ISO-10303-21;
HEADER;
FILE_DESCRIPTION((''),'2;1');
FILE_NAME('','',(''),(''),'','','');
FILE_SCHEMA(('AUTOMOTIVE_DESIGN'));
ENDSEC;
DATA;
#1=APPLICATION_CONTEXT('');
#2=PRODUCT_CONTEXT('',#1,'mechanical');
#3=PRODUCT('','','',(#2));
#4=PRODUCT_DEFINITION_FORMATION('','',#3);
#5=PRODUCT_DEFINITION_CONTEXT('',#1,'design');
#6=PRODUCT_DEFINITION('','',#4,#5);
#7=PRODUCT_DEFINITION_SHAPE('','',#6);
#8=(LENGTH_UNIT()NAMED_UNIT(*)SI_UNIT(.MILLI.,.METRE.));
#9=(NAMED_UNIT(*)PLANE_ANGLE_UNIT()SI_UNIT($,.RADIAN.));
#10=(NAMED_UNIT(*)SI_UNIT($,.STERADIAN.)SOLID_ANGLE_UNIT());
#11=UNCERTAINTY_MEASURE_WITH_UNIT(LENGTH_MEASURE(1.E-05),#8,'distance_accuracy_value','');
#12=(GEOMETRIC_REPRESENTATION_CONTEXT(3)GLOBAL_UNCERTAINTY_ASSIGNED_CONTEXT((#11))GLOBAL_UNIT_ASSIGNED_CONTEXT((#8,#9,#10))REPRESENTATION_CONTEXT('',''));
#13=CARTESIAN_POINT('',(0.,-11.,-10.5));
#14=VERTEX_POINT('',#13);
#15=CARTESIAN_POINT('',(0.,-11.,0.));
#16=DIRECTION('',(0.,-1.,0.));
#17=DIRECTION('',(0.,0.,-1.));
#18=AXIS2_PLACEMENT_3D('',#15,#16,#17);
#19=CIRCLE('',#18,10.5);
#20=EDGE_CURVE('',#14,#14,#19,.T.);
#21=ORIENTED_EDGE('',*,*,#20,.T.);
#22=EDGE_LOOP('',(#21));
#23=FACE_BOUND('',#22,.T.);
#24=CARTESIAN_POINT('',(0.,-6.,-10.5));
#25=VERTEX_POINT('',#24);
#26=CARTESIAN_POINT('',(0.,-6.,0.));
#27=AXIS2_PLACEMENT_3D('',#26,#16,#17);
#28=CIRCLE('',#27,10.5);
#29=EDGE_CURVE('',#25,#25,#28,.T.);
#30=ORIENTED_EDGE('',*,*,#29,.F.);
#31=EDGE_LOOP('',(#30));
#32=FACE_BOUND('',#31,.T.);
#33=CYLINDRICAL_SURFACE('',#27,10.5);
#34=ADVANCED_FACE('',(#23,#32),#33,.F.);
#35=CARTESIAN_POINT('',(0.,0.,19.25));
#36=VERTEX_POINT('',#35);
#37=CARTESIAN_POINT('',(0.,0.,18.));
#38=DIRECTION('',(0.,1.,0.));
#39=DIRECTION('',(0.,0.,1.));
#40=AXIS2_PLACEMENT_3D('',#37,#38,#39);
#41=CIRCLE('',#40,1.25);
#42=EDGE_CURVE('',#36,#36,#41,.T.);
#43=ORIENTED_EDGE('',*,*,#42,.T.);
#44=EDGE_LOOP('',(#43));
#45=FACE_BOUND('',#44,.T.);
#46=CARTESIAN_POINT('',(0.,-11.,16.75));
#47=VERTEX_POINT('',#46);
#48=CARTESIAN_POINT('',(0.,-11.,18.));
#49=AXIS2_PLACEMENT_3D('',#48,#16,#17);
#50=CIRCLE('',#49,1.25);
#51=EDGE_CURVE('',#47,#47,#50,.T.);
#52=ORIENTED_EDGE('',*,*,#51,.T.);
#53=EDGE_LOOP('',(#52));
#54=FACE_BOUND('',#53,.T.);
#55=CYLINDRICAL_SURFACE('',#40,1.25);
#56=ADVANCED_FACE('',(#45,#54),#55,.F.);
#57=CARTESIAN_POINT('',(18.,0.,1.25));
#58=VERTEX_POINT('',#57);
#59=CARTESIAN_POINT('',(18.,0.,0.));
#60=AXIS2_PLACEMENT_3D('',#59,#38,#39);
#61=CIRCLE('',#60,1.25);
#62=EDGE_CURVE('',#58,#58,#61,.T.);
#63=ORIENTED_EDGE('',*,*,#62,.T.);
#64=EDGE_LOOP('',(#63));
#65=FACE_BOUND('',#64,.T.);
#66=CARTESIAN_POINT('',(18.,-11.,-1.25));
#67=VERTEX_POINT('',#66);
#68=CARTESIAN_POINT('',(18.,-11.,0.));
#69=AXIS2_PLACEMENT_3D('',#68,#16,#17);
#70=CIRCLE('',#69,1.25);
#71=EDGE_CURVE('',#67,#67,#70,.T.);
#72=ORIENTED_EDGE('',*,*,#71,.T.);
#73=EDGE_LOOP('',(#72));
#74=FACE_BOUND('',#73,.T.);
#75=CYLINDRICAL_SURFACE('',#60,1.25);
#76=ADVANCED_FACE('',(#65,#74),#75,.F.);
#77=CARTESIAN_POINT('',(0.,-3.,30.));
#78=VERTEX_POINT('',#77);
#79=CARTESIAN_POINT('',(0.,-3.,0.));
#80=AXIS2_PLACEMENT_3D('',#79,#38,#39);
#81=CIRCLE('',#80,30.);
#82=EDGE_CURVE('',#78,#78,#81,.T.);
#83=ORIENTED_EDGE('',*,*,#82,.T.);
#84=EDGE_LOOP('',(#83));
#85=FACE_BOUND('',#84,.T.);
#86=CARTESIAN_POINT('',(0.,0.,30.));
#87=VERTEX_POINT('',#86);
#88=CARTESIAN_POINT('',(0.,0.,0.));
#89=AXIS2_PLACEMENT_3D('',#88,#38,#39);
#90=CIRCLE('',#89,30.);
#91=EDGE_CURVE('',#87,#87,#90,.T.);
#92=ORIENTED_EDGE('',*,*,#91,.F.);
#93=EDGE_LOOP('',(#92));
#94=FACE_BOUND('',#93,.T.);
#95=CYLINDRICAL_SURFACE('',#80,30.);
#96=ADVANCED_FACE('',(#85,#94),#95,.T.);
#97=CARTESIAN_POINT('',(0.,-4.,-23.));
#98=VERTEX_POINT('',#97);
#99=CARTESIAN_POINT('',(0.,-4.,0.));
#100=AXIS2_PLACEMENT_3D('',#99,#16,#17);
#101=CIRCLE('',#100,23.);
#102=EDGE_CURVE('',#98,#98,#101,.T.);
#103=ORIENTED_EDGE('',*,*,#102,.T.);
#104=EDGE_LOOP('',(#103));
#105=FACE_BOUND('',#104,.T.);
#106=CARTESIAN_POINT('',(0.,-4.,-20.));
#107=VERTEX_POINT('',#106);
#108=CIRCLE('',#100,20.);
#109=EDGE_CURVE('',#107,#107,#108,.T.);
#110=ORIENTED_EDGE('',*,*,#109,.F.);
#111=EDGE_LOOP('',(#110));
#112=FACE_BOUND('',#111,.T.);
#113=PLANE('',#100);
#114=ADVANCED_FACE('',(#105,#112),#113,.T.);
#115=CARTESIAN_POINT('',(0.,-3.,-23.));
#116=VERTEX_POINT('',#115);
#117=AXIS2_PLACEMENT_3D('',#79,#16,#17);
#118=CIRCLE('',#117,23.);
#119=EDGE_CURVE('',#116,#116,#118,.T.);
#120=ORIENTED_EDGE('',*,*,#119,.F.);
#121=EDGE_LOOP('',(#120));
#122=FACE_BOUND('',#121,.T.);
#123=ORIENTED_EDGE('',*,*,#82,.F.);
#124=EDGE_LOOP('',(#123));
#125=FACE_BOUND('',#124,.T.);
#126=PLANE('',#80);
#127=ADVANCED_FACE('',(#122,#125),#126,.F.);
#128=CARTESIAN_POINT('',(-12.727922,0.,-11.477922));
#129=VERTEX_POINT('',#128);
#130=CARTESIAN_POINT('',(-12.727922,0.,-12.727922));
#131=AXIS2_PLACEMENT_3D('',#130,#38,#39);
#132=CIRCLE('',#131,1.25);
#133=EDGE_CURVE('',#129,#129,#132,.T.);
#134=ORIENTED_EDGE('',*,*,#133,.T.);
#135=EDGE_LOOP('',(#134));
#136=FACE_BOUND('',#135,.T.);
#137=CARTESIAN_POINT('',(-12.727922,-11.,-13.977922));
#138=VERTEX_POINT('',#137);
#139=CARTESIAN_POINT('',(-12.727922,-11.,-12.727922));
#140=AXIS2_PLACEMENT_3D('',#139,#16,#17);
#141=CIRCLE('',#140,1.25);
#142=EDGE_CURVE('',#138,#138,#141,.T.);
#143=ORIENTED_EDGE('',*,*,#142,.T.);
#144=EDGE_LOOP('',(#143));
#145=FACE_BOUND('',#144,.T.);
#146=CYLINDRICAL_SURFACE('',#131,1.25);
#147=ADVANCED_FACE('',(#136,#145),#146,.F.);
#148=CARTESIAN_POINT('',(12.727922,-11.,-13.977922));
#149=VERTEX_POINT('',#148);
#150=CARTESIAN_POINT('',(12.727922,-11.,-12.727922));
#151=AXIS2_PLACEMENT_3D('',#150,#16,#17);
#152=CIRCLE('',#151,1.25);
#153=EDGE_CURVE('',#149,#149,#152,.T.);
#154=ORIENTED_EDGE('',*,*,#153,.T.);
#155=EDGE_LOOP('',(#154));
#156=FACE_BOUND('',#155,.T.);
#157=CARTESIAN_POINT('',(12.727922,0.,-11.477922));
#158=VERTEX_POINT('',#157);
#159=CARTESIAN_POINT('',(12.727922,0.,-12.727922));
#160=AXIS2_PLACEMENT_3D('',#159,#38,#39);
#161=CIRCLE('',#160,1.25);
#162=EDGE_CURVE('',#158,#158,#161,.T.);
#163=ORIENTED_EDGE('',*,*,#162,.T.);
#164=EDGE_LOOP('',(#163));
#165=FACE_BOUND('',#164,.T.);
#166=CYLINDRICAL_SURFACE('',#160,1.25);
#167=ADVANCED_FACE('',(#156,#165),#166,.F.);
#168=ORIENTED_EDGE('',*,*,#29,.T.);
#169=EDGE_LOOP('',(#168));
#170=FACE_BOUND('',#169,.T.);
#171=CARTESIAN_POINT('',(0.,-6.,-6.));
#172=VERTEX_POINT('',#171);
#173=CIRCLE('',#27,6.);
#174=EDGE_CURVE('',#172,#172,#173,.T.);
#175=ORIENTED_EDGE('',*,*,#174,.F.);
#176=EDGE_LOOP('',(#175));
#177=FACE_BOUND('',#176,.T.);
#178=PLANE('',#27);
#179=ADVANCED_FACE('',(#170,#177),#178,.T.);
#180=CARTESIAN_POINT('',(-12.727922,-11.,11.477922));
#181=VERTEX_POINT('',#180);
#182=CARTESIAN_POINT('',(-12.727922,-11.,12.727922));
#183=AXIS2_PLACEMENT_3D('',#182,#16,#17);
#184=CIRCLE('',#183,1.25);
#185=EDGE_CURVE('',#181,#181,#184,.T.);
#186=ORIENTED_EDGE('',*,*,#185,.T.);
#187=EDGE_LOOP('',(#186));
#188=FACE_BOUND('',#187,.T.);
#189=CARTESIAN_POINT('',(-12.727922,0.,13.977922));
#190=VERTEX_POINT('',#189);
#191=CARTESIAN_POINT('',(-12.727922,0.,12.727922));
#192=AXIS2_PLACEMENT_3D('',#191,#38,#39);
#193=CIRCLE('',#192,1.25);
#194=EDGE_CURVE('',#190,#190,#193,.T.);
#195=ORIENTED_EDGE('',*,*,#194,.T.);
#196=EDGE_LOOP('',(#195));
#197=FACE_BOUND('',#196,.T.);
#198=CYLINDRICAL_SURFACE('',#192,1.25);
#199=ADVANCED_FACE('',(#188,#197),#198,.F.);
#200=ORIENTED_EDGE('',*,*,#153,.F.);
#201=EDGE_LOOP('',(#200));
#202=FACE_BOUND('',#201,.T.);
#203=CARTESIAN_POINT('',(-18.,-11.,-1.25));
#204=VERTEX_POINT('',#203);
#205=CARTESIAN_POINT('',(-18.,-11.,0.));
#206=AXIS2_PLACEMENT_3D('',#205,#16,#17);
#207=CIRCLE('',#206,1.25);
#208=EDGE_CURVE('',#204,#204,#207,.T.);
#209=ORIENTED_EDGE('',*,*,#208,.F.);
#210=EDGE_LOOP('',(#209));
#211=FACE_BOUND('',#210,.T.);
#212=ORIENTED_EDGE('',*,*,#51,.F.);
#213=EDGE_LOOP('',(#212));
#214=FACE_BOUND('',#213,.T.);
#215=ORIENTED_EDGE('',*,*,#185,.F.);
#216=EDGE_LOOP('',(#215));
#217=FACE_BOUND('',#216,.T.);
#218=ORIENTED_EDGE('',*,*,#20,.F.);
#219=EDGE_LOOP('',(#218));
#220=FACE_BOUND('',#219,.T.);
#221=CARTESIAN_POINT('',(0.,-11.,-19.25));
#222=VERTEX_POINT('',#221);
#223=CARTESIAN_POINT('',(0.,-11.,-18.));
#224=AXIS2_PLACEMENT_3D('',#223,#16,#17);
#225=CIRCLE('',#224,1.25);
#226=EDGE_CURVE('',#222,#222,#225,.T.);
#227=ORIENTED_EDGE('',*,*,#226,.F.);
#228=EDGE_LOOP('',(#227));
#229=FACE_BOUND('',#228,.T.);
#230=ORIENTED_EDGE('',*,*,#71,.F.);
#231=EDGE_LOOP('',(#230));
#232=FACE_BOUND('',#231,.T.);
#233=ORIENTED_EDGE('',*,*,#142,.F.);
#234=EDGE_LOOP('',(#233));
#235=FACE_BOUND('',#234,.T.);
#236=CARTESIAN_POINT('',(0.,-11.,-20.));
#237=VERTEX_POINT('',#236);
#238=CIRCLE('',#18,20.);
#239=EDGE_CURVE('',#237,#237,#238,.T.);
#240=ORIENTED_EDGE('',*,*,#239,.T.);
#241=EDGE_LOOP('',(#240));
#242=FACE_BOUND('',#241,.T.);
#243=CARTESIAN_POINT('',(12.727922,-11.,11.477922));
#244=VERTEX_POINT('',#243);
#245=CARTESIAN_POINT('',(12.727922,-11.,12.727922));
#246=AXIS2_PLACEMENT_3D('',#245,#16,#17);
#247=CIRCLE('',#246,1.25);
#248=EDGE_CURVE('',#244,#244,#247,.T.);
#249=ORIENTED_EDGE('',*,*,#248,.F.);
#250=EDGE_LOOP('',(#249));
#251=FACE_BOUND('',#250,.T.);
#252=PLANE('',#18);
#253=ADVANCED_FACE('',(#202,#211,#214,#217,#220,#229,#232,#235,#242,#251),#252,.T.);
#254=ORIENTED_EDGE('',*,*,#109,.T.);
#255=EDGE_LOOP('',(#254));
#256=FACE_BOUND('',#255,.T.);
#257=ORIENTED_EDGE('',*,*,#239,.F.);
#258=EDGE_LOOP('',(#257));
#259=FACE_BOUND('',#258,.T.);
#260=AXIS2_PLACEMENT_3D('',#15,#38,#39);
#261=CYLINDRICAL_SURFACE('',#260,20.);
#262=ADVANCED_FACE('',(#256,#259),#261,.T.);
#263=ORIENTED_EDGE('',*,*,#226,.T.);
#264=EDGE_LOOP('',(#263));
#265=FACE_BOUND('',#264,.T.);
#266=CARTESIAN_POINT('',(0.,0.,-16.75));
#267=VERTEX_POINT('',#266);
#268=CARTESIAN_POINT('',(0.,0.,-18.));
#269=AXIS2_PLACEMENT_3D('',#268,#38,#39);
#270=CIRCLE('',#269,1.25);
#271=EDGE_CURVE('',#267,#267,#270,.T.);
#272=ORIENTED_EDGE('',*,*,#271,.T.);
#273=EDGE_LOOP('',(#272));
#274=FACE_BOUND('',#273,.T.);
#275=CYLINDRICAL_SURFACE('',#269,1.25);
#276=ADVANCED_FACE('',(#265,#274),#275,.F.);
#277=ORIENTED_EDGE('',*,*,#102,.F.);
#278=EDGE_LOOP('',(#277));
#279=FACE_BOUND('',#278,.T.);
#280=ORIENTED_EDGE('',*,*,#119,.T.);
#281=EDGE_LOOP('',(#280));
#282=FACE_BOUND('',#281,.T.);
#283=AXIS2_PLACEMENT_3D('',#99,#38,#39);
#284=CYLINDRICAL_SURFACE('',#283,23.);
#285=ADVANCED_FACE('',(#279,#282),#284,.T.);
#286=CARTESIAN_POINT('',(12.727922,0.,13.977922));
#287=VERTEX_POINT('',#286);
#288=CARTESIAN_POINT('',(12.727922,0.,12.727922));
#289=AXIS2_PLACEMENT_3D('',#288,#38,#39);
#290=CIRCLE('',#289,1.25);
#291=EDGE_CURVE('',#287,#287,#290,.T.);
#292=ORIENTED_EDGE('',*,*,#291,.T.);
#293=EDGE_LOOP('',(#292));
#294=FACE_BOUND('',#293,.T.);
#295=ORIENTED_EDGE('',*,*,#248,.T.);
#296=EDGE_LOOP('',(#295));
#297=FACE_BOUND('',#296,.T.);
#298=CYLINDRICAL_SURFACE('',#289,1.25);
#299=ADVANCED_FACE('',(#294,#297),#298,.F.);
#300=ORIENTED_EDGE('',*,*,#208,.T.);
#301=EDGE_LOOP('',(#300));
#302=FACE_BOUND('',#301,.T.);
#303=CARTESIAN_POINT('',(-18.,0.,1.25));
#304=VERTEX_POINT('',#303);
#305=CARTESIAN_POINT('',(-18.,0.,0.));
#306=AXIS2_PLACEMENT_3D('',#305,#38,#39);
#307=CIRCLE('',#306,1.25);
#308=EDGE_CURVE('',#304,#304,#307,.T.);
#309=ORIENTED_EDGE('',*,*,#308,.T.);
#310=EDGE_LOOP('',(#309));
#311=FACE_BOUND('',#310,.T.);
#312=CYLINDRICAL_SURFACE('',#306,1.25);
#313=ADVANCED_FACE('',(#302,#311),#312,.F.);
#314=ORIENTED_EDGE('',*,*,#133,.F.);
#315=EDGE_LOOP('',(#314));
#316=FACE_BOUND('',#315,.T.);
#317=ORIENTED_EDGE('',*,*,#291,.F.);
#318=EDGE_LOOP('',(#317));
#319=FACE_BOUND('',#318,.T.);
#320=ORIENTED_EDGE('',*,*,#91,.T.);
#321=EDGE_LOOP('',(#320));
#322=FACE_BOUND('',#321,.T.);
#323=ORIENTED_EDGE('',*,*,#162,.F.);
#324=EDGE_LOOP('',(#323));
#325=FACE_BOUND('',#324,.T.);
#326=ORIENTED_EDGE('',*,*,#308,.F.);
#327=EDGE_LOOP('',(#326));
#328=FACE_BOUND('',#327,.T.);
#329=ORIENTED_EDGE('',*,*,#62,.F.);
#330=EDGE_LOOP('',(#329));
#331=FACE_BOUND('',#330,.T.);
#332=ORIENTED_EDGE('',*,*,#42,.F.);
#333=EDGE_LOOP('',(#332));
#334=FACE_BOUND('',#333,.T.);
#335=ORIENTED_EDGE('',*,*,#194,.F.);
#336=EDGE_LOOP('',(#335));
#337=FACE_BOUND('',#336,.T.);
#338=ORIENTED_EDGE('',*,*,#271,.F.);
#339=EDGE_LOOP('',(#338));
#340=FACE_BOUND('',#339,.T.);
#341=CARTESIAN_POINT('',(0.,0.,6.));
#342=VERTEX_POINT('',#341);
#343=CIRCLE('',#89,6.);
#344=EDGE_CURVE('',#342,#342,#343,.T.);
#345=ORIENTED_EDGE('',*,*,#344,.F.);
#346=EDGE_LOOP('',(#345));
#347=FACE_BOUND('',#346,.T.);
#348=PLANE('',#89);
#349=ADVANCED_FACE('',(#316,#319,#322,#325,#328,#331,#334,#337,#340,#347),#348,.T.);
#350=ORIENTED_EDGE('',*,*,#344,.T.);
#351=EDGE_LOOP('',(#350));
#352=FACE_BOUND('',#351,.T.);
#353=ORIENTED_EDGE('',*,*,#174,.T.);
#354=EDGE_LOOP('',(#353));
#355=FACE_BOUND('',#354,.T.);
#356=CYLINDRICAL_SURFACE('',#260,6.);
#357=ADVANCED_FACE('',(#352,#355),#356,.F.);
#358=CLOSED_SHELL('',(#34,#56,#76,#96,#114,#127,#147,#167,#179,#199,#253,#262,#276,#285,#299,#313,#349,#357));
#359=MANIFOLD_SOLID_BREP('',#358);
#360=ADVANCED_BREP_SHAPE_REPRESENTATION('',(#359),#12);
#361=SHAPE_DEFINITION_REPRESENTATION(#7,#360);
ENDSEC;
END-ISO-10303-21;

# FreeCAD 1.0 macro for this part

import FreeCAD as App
import Part
import Sketcher

V = App.Vector
Q = App.Units.Quantity

doc = App.newDocument("Part")
body = doc.addObject("PartDesign::Body", "Body")

# Sketch on XZ plane
sketch1 = body.newObject("Sketcher::SketchObject", "Sketch")
sketch1.AttachmentSupport = (doc.getObject("XZ_Plane"), [""])
sketch1.MapMode = "FlatFace"
sketch1.addGeometry(Part.Circle(V(0, 0, 0), V(0, 0, 1), 30), False)
sketch1.addConstraint([
    Sketcher.Constraint("Coincident", 0, 3, -1, 1),
    Sketcher.Constraint("Diameter", 0, Q("60 mm")),
])
pad1 = body.newObject("PartDesign::Pad", "Pad")
pad1.Profile = sketch1
pad1.Length = 3

# Sketch on XZ plane
sketch2 = body.newObject("Sketcher::SketchObject", "Sketch001")
sketch2.AttachmentSupport = (doc.getObject("XZ_Plane"), [""])
sketch2.MapMode = "FlatFace"
sketch2.AttachmentOffset = App.Placement(V(0, 0, 3), App.Rotation())
sketch2.addGeometry(Part.Circle(V(0, 0, 0), V(0, 0, 1), 23), False)
sketch2.addConstraint([
    Sketcher.Constraint("Coincident", 0, 3, -1, 1),
    Sketcher.Constraint("Diameter", 0, Q("46 mm")),
])
pad2 = body.newObject("PartDesign::Pad", "Pad001")
pad2.Profile = sketch2
pad2.Length = 1

# Sketch on XZ plane
sketch3 = body.newObject("Sketcher::SketchObject", "Sketch002")
sketch3.AttachmentSupport = (doc.getObject("XZ_Plane"), [""])
sketch3.MapMode = "FlatFace"
sketch3.AttachmentOffset = App.Placement(V(0, 0, 4), App.Rotation())
sketch3.addGeometry(Part.Circle(V(0, 0, 0), V(0, 0, 1), 20), False)
sketch3.addConstraint([
    Sketcher.Constraint("Coincident", 0, 3, -1, 1),
    Sketcher.Constraint("Diameter", 0, Q("40 mm")),
])
pad3 = body.newObject("PartDesign::Pad", "Pad002")
pad3.Profile = sketch3
pad3.Length = 7

# Sketch on XZ plane
sketch4 = body.newObject("Sketcher::SketchObject", "Sketch003")
sketch4.AttachmentSupport = (doc.getObject("XZ_Plane"), [""])
sketch4.MapMode = "FlatFace"
sketch4.AttachmentOffset = App.Placement(V(0, 0, 11), App.Rotation())
sketch4.addGeometry(Part.Circle(V(0, 0, 0), V(0, 0, 1), 10), False)
sketch4.addConstraint([
    Sketcher.Constraint("Coincident", 0, 3, -1, 1),
    Sketcher.Constraint("Diameter", 0, Q("21 mm")),
])
pocket1 = body.newObject("PartDesign::Pocket", "Pocket")
pocket1.Profile = sketch4
pocket1.Length = 5

# Sketch on XZ plane
sketch5 = body.newObject("Sketcher::SketchObject", "Sketch004")
sketch5.AttachmentSupport = (doc.getObject("XZ_Plane"), [""])
sketch5.MapMode = "FlatFace"
sketch5.addGeometry(Part.Circle(V(0, 0, 0), V(0, 0, 1), 6), False)
sketch5.addConstraint([
    Sketcher.Constraint("Coincident", 0, 3, -1, 1),
    Sketcher.Constraint("Diameter", 0, Q("12 mm")),
])
pocket2 = body.newObject("PartDesign::Pocket", "Pocket001")
pocket2.Profile = sketch5
pocket2.Type = "ThroughAll"
pocket2.Reversed = True

# Sketch on XZ plane
sketch6 = body.newObject("Sketcher::SketchObject", "Sketch005")
sketch6.AttachmentSupport = (doc.getObject("XZ_Plane"), [""])
sketch6.MapMode = "FlatFace"
sketch6.addGeometry([
    Part.Circle(V(-12.7, -12.7, 0), V(0, 0, 1), 1.2),  # 0
    Part.Circle(V(0, -18, 0), V(0, 0, 1), 1.2),  # 1
    Part.Circle(V(12.7, -12.7, 0), V(0, 0, 1), 1.2),  # 2
    Part.Circle(V(18, 0, 0), V(0, 0, 1), 1.2),  # 3
    Part.Circle(V(12.7, 12.7, 0), V(0, 0, 1), 1.2),  # 4
    Part.Circle(V(0, 18, 0), V(0, 0, 1), 1.2),  # 5
    Part.Circle(V(-12.7, 12.7, 0), V(0, 0, 1), 1.2),  # 6
    Part.Circle(V(-18, 0, 0), V(0, 0, 1), 1.2),  # 7
], False)
sketch6.addConstraint([
    Sketcher.Constraint("Equal", 0, 1),
    Sketcher.Constraint("Equal", 1, 2),
    Sketcher.Constraint("Equal", 2, 3),
    Sketcher.Constraint("Equal", 3, 4),
    Sketcher.Constraint("Equal", 4, 5),
    Sketcher.Constraint("Equal", 5, 6),
    Sketcher.Constraint("Equal", 6, 7),
    Sketcher.Constraint("Symmetric", 0, 3, 4, 3, -1, 1),
    Sketcher.Constraint("Symmetric", 1, 3, 5, 3, -1, 1),
    Sketcher.Constraint("Symmetric", 2, 3, 6, 3, -1, 1),
    Sketcher.Constraint("Symmetric", 3, 3, 7, 3, -1, 1),
    Sketcher.Constraint("Symmetric", 0, 3, 2, 3, -2),
    Sketcher.Constraint("PointOnObject", 1, 3, -2),
    Sketcher.Constraint("PointOnObject", 3, 3, -1),
    Sketcher.Constraint("Diameter", 0, Q("2.5 mm")),
    Sketcher.Constraint("DistanceY", 1, 3, -1, 1, Q("18 mm")),
    Sketcher.Constraint("DistanceX", -1, 1, 3, 3, Q("18 mm")),
    Sketcher.Constraint("DistanceX", 0, 3, -1, 1, Q("12.727922 mm")),
    Sketcher.Constraint("DistanceY", 0, 3, -1, 1, Q("12.727922 mm")),
])
doc.recompute()
hole = body.newObject("PartDesign::Hole", "Hole")
hole.Profile = sketch6
hole.ThreadType = "None"
hole.Diameter = 2.5
hole.DepthType = "Dimension"
hole.Depth = 29.248924
hole.DrillPoint = "Angled"
hole.DrillPointAngle = 118
hole.Reversed = True

doc.recompute()
